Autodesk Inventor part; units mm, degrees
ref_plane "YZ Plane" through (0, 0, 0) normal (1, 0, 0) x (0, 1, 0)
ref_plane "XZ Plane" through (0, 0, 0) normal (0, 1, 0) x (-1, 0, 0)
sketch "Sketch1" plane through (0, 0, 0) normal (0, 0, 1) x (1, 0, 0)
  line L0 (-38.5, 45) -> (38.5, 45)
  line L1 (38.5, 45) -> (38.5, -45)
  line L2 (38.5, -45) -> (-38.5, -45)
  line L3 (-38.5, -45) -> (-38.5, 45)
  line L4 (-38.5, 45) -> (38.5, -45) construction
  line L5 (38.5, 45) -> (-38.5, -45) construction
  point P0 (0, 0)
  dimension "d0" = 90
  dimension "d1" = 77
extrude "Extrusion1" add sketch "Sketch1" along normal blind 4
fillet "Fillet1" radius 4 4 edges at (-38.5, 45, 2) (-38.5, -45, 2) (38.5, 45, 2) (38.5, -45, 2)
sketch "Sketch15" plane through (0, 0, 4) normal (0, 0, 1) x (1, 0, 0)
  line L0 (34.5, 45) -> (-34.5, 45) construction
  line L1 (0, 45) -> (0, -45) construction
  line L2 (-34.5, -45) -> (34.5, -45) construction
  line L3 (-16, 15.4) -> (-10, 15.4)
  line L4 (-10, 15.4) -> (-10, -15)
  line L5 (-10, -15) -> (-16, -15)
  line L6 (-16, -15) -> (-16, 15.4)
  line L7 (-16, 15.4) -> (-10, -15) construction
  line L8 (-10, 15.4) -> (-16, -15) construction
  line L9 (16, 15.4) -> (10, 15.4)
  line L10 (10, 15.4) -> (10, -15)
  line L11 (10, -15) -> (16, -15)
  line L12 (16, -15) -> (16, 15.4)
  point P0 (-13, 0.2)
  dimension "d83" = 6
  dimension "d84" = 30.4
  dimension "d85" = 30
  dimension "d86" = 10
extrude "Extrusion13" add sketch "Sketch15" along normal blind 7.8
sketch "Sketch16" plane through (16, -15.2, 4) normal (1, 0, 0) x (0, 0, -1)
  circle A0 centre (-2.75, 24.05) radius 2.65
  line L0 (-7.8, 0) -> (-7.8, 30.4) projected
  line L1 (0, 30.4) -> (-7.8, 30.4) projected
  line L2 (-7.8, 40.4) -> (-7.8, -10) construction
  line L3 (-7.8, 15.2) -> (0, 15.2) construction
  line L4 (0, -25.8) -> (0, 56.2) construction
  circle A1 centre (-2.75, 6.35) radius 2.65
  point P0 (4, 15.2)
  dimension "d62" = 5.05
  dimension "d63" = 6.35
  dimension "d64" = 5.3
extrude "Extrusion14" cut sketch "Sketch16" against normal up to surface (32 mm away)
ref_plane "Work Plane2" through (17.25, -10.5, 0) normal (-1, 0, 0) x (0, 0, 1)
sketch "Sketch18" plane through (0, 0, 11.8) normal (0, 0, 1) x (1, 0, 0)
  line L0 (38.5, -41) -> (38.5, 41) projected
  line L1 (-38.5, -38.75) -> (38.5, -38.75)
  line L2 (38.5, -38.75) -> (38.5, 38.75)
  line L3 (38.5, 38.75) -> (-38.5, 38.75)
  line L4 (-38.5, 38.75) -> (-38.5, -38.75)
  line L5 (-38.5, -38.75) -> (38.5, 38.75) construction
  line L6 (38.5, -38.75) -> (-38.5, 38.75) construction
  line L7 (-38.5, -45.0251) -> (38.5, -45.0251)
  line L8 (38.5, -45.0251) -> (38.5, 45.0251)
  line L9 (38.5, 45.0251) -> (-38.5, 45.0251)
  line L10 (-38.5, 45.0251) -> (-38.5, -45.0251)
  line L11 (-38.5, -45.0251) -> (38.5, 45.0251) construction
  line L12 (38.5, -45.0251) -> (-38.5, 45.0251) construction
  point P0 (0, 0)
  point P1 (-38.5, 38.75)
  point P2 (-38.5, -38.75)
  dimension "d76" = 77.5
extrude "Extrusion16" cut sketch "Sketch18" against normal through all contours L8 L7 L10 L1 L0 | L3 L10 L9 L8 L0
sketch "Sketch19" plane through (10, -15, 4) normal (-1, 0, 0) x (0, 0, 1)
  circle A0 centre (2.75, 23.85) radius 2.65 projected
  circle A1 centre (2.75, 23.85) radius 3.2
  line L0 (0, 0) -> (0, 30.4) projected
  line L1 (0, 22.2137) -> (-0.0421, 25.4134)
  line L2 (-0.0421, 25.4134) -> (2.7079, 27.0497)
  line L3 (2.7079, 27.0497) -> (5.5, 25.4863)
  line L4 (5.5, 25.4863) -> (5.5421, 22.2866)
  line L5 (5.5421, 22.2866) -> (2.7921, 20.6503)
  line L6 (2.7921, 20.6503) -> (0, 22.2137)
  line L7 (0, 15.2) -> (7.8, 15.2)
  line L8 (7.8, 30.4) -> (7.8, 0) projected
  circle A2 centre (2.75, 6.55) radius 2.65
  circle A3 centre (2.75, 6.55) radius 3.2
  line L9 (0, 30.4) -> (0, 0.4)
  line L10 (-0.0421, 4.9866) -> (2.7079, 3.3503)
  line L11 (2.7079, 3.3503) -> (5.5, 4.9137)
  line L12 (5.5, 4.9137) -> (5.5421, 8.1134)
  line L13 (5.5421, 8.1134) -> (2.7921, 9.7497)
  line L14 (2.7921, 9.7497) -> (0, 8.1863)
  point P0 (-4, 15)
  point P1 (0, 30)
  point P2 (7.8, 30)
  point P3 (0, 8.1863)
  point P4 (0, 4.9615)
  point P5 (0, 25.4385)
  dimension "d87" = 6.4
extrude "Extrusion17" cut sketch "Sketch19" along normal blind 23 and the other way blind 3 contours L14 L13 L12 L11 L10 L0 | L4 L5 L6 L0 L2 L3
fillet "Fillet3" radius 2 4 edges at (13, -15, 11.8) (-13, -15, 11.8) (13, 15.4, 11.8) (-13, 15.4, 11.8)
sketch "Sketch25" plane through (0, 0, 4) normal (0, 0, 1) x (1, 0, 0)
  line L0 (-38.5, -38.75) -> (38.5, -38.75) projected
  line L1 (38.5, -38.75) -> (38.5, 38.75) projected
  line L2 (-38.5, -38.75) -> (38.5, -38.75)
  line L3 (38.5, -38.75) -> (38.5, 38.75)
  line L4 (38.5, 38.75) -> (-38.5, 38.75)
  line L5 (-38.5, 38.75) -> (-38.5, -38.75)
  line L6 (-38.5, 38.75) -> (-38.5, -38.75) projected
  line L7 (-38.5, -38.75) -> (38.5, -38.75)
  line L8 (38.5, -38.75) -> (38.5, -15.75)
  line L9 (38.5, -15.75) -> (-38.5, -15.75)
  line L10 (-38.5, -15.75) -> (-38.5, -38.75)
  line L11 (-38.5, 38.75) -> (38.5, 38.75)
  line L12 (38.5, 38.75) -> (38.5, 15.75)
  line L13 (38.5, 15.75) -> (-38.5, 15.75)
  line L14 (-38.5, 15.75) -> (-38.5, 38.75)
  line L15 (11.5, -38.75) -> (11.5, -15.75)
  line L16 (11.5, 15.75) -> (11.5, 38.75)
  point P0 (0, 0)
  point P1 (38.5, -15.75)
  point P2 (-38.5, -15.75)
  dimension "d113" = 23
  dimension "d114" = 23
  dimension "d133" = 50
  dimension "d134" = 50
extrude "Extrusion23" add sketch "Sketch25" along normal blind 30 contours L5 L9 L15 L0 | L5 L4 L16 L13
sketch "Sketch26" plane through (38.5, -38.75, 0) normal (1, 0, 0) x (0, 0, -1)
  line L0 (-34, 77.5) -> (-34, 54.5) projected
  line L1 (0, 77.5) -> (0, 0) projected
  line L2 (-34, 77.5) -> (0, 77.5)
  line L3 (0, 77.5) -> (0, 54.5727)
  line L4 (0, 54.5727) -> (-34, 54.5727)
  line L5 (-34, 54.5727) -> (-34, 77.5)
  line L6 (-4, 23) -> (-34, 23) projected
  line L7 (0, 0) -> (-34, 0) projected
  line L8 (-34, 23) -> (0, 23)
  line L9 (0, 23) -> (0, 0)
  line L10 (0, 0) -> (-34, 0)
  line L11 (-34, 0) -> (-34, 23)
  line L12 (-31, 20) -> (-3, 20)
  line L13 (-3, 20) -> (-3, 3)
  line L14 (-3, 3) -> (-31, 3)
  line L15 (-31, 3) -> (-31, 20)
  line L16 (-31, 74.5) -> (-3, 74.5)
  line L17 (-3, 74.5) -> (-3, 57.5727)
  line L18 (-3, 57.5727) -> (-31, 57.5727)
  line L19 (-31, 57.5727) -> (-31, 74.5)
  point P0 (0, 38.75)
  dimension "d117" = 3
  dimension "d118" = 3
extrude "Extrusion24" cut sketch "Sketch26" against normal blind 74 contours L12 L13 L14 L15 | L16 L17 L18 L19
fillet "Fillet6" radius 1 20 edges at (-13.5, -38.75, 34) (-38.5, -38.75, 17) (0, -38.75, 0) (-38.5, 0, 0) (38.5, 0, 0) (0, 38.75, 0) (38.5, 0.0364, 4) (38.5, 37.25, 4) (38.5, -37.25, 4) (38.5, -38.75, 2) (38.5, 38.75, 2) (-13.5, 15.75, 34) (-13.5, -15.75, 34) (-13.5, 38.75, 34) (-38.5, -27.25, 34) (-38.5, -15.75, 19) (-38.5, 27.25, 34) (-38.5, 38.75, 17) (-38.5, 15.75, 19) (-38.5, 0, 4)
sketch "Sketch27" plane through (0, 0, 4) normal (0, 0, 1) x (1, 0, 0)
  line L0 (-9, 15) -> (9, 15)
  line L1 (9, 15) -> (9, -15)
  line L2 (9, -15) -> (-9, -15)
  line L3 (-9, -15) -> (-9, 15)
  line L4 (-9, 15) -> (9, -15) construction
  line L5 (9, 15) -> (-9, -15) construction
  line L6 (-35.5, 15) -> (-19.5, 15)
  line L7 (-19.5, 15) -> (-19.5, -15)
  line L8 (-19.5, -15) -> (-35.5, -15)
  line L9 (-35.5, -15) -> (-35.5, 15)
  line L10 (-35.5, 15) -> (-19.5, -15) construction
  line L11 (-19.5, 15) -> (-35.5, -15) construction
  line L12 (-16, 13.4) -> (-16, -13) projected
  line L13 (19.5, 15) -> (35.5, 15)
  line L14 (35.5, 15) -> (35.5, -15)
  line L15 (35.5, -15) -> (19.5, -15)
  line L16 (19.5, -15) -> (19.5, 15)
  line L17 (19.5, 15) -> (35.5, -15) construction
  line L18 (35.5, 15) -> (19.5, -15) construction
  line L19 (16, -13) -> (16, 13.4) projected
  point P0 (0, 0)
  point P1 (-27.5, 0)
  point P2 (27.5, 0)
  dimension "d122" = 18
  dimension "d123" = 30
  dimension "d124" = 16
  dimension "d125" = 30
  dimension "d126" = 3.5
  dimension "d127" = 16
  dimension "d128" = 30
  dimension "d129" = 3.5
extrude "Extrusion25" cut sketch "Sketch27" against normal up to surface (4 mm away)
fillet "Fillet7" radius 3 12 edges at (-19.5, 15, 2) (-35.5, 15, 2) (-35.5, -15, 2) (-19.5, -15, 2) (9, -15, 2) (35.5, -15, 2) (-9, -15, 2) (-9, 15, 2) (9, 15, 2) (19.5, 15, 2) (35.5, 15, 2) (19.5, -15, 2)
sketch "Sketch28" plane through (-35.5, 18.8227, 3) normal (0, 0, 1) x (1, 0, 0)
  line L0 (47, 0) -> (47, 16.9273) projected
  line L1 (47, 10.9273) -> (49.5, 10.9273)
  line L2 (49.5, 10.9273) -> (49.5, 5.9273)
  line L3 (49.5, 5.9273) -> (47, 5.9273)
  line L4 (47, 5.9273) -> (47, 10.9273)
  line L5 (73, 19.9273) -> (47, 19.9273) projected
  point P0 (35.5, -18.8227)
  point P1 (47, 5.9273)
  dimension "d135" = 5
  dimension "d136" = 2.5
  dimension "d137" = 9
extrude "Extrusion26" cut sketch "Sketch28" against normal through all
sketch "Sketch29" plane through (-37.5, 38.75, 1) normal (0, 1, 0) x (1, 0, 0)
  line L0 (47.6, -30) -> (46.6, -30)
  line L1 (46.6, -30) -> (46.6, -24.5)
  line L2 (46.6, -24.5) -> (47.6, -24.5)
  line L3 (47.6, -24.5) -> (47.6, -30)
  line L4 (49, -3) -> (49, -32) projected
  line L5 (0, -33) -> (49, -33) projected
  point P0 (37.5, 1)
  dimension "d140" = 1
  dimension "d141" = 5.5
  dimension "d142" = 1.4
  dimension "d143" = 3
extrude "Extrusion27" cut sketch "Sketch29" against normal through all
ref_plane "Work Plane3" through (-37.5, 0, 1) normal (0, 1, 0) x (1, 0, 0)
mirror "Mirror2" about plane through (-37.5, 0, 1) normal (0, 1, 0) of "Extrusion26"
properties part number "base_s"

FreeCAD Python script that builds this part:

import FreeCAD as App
import Part
import Sketcher

V = App.Vector
Q = App.Units.Quantity


def edges_at(feature, points):
    """Names of the edges that pass closest to the given points."""
    edges = feature.Shape.Edges
    near = lambda p: min(range(len(edges)), key=lambda i: edges[i].distToShape(Part.Vertex(*p))[0])
    return sorted({f"Edge{near(p) + 1}" for p in points})


def add_polygon(sketch, points):
    """Adds a closed chain of lines whose ends are joined by coincident constraints."""
    first, n = sketch.GeometryCount, len(points)
    for a, b in zip(points, points[1:] + points[:1]):
        sketch.addGeometry(Part.LineSegment(App.Vector(*a, 0), App.Vector(*b, 0)), False)
    for i in range(n):
        sketch.addConstraint(Sketcher.Constraint("Coincident", first + i, 2, first + (i + 1) % n, 1))

doc = App.newDocument("Part")
body = doc.addObject("PartDesign::Body", "Body")

# Sketch on XY plane
sketch1 = body.newObject("Sketcher::SketchObject", "Sketch")
sketch1.AttachmentSupport = (doc.getObject("XY_Plane"), [""])
sketch1.MapMode = "FlatFace"
add_polygon(sketch1, [(38, 45), (-38, 45), (-38, -45), (38, -45)])  # lines 0-3
sketch1.addConstraint([
    Sketcher.Constraint("Horizontal", 0),
    Sketcher.Constraint("Vertical", 1),
    Sketcher.Constraint("Horizontal", 2),
    Sketcher.Constraint("Vertical", 3),
    Sketcher.Constraint("Symmetric", 0, 2, 2, 2, -1, 1),
    Sketcher.Constraint("DistanceX", 0, 2, 0, 1, Q("77 mm")),
    Sketcher.Constraint("DistanceY", 1, 2, 1, 1, Q("90 mm")),
])
pad1 = body.newObject("PartDesign::Pad", "Pad")
pad1.Profile = sketch1
pad1.Length = 4
doc.recompute()

fillet = body.newObject("PartDesign::Fillet", "Fillet")
fillet.Base = (pad1, edges_at(pad1, [
    (-38.5, 45, 2),
    (-38.5, -45, 2),
    (38.5, 45, 2),
    (38.5, -45, 2),
]))
fillet.Radius = 4

# Sketch on XY plane
sketch2 = body.newObject("Sketcher::SketchObject", "Sketch001")
sketch2.AttachmentSupport = (doc.getObject("XY_Plane"), [""])
sketch2.MapMode = "FlatFace"
sketch2.AttachmentOffset = App.Placement(V(0, 0, 4), App.Rotation())
add_polygon(sketch2, [(-10, 15), (-16, 15), (-16, -15), (-10, -15)])  # lines 0-3
add_polygon(sketch2, [(16, -15), (16, 15), (10, 15), (10, -15)])  # lines 4-7
sketch2.addConstraint([
    Sketcher.Constraint("Horizontal", 0),
    Sketcher.Constraint("Vertical", 1),
    Sketcher.Constraint("Horizontal", 2),
    Sketcher.Constraint("Vertical", 3),
    Sketcher.Constraint("Vertical", 4),
    Sketcher.Constraint("Horizontal", 5),
    Sketcher.Constraint("Vertical", 6),
    Sketcher.Constraint("Horizontal", 7),
    Sketcher.Constraint("Symmetric", 0, 2, 4, 2, -2),
    Sketcher.Constraint("Symmetric", 2, 2, 6, 2, -2),
    Sketcher.Constraint("DistanceX", 0, 2, 0, 1, Q("6 mm")),
    Sketcher.Constraint("DistanceY", 1, 2, 1, 1, Q("30.4 mm")),
    Sketcher.Constraint("DistanceX", 2, 2, -1, 1, Q("10 mm")),
    Sketcher.Constraint("DistanceY", 1, 2, -1, 1, Q("15 mm")),
])
pad2 = body.newObject("PartDesign::Pad", "Pad001")
pad2.Profile = sketch2
pad2.Length = 7.8

# Sketch on YZ plane
sketch3 = body.newObject("Sketcher::SketchObject", "Sketch002")
sketch3.AttachmentSupport = (doc.getObject("YZ_Plane"), [""])
sketch3.MapMode = "FlatFace"
sketch3.AttachmentOffset = App.Placement(V(0, 0, 16), App.Rotation())
sketch3.addGeometry([
    Part.Circle(V(8.8, 6.8, 0), V(0, 0, 1), 2.6),
    Part.Circle(V(-8.8, 6.8, 0), V(0, 0, 1), 2.6),
], False)
sketch3.addConstraint([
    Sketcher.Constraint("Equal", 0, 1),
    Sketcher.Constraint("Symmetric", 0, 3, 1, 3, -2),
    Sketcher.Constraint("Diameter", 0, Q("5.3 mm")),
    Sketcher.Constraint("DistanceX", 1, 3, 0, 3, Q("17.7 mm")),
    Sketcher.Constraint("DistanceY", -1, 1, 0, 3, Q("6.75 mm")),
])
pocket1 = body.newObject("PartDesign::Pocket", "Pocket")
pocket1.Profile = sketch3
pocket1.Length = 32

# Sketch on XY plane
sketch4 = body.newObject("Sketcher::SketchObject", "Sketch003")
sketch4.AttachmentSupport = (doc.getObject("XY_Plane"), [""])
sketch4.MapMode = "FlatFace"
sketch4.AttachmentOffset = App.Placement(V(0, 0, 11.8), App.Rotation())
add_polygon(sketch4, [(38, -45), (38, -39), (-38, -39), (-38, -45)])  # lines 0-3
add_polygon(sketch4, [(-38, 39), (38, 39), (38, 45), (-38, 45)])  # lines 4-7
sketch4.addConstraint([
    Sketcher.Constraint("Vertical", 0),
    Sketcher.Constraint("Horizontal", 1),
    Sketcher.Constraint("Vertical", 2),
    Sketcher.Constraint("Horizontal", 3),
    Sketcher.Constraint("Horizontal", 4),
    Sketcher.Constraint("Vertical", 5),
    Sketcher.Constraint("Horizontal", 6),
    Sketcher.Constraint("Vertical", 7),
    Sketcher.Constraint("Symmetric", 1, 2, 4, 2, -1, 1),
    Sketcher.Constraint("Symmetric", 3, 2, 6, 2, -1, 1),
    Sketcher.Constraint("Vertical", 3, 2, 4, 2),
    Sketcher.Constraint("DistanceY", 0, 2, 4, 2, Q("77.5 mm")),
    Sketcher.Constraint("DistanceX", 1, 2, 1, 1, Q("77 mm")),
    Sketcher.Constraint("DistanceY", 0, 1, 0, 2, Q("6.275 mm")),
])
pocket2 = body.newObject("PartDesign::Pocket", "Pocket001")
pocket2.Profile = sketch4
pocket2.Type = "ThroughAll"

# Sketch on YZ plane
sketch5 = body.newObject("Sketcher::SketchObject", "Sketch004")
sketch5.AttachmentSupport = (doc.getObject("YZ_Plane"), [""])
sketch5.MapMode = "FlatFace"
sketch5.AttachmentOffset = App.Placement(V(0, 0, 10), App.Rotation())
add_polygon(sketch5, [(-5.2503, 6.7921), (-6.8137, 4), (-10.03845, 4), (-11.6497, 6.7079), (-10.0863, 9.5), (-6.8866, 9.5421)])  # lines 0-5
sketch5.addGeometry(Part.Circle(V(-8.45, 6.75, 0), V(0, 0, 1), 2.65), False)  # 6
add_polygon(sketch5, [(7.2866, 9.5421), (10.4863, 9.5), (12.0497, 6.7079), (10.43845, 4), (7.2137, 4), (5.6503, 6.7921)])  # lines 7-12
sketch5.addGeometry(Part.Circle(V(8.85, 6.75, 0), V(0, 0, 1), 2.65), False)  # 13
sketch5.addConstraint([
    Sketcher.Constraint("Horizontal", 1),
    Sketcher.Constraint("Horizontal", 10),
    Sketcher.Constraint("Equal", 6, 13),
    Sketcher.Constraint("Parallel", 0, 3),
    Sketcher.Constraint("Parallel", 2, 5),
    Sketcher.Constraint("Parallel", 8, 11),
    Sketcher.Constraint("Parallel", 9, 12),
    Sketcher.Constraint("Horizontal", 6, 3, 13, 3),
    Sketcher.Constraint("Horizontal", 3, 2, 7, 2),
    Sketcher.Constraint("Horizontal", 2, 2, 8, 2),
    Sketcher.Constraint("Horizontal", 1, 2, 9, 2),
    Sketcher.Constraint("Horizontal", 5, 2, 11, 2),
    Sketcher.Constraint("Horizontal", 4, 2, 12, 2),
    Sketcher.Constraint("Equal", 1, 10),
    Sketcher.Constraint("Equal", 0, 3),
    Sketcher.Constraint("Equal", 3, 4),
    Sketcher.Constraint("Equal", 4, 5),
    Sketcher.Constraint("Equal", 5, 7),
    Sketcher.Constraint("Equal", 7, 8),
    Sketcher.Constraint("Diameter", 6, Q("5.3 mm")),
    Sketcher.Constraint("DistanceY", -1, 1, 0, 2, Q("4 mm")),
    Sketcher.Constraint("Distance", 0, Q("3.2 mm")),
    Sketcher.Constraint("DistanceY", -1, 1, 3, 2, Q("9.5 mm")),
    Sketcher.Constraint("DistanceX", 6, 3, 13, 3, Q("17.3 mm")),
    Sketcher.Constraint("DistanceX", 0, 2, 7, 2, Q("17.3 mm")),
    Sketcher.Constraint("DistanceX", 6, 3, -1, 1, Q("8.45 mm")),
    Sketcher.Constraint("DistanceY", -1, 1, 6, 3, Q("6.75 mm")),
    Sketcher.Constraint("DistanceY", 5, 2, 4, 2, Q("2.75 mm")),
    Sketcher.Constraint("Distance", 2, Q("3.151 mm")),
    Sketcher.Constraint("DistanceX", 0, 2, -1, 1, Q("6.8137 mm")),
])
pocket3 = body.newObject("PartDesign::Pocket", "Pocket002")
pocket3.Profile = sketch5
pocket3.Type = "TwoLengths"
pocket3.Length = 23
pocket3.Length2 = 3
doc.recompute()

fillet2 = body.newObject("PartDesign::Fillet", "Fillet001")
fillet2.Base = (pocket3, edges_at(pocket3, [
    (13, -15, 11.8),
    (-13, -15, 11.8),
    (13, 15.4, 11.8),
    (-13, 15.4, 11.8),
]))
fillet2.Radius = 2

# Sketch on XY plane
sketch6 = body.newObject("Sketcher::SketchObject", "Sketch005")
sketch6.AttachmentSupport = (doc.getObject("XY_Plane"), [""])
sketch6.MapMode = "FlatFace"
sketch6.AttachmentOffset = App.Placement(V(0, 0, 4), App.Rotation())
add_polygon(sketch6, [(-38, -16), (-38, -39), (12, -39), (12, -16)])  # lines 0-3
add_polygon(sketch6, [(-38, 39), (-38, 16), (12, 16), (12, 39)])  # lines 4-7
sketch6.addConstraint([
    Sketcher.Constraint("Vertical", 0),
    Sketcher.Constraint("Horizontal", 1),
    Sketcher.Constraint("Vertical", 2),
    Sketcher.Constraint("Horizontal", 3),
    Sketcher.Constraint("Vertical", 4),
    Sketcher.Constraint("Horizontal", 5),
    Sketcher.Constraint("Vertical", 6),
    Sketcher.Constraint("Horizontal", 7),
    Sketcher.Constraint("Symmetric", 3, 2, 4, 2, -1),
    Sketcher.Constraint("Symmetric", 1, 2, 6, 2, -1),
    Sketcher.Constraint("DistanceX", 1, 1, 1, 2, Q("50 mm")),
    Sketcher.Constraint("DistanceY", 0, 2, 0, 1, Q("23 mm")),
    Sketcher.Constraint("DistanceX", 0, 2, -1, 1, Q("38.5 mm")),
    Sketcher.Constraint("DistanceY", 3, 2, 4, 2, Q("31.5 mm")),
])
pad3 = body.newObject("PartDesign::Pad", "Pad002")
pad3.Profile = sketch6
pad3.Length = 30

# Sketch on YZ plane
sketch7 = body.newObject("Sketcher::SketchObject", "Sketch006")
sketch7.AttachmentSupport = (doc.getObject("YZ_Plane"), [""])
sketch7.MapMode = "FlatFace"
sketch7.AttachmentOffset = App.Placement(V(0, 0, 38.5), App.Rotation())
add_polygon(sketch7, [(-19, 3), (-19, 31), (-36, 31), (-36, 3)])  # lines 0-3
add_polygon(sketch7, [(36, 3), (36, 31), (19, 31), (19, 3)])  # lines 4-7
sketch7.addConstraint([
    Sketcher.Constraint("Vertical", 0),
    Sketcher.Constraint("Horizontal", 1),
    Sketcher.Constraint("Vertical", 2),
    Sketcher.Constraint("Horizontal", 3),
    Sketcher.Constraint("Vertical", 4),
    Sketcher.Constraint("Horizontal", 5),
    Sketcher.Constraint("Vertical", 6),
    Sketcher.Constraint("Horizontal", 7),
    Sketcher.Constraint("Symmetric", 1, 2, 4, 2, -2),
    Sketcher.Constraint("Horizontal", 3, 2, 6, 2),
    Sketcher.Constraint("DistanceY", -1, 1, 2, 2, Q("3 mm")),
    Sketcher.Constraint("DistanceX", 1, 2, 1, 1, Q("17 mm")),
    Sketcher.Constraint("DistanceY", 0, 1, 0, 2, Q("28 mm")),
    Sketcher.Constraint("DistanceX", 0, 2, 4, 2, Q("54.5 mm")),
    Sketcher.Constraint("DistanceX", 5, 2, 5, 1, Q("16.9273 mm")),
])
pocket4 = body.newObject("PartDesign::Pocket", "Pocket003")
pocket4.Profile = sketch7
pocket4.Length = 74
doc.recompute()

fillet3 = body.newObject("PartDesign::Fillet", "Fillet002")
fillet3.Base = (pocket4, edges_at(pocket4, [
    (-13.5, -38.75, 34),
    (-38.5, -38.75, 17),
    (0, -38.75, 0),
    (-38.5, 0, 0),
    (38.5, 0, 0),
    (0, 38.75, 0),
    (38.5, 0.036, 4),
    (38.5, 37.25, 4),
    (38.5, -37.25, 4),
    (38.5, -38.75, 2),
    (38.5, 38.75, 2),
    (-13.5, 15.75, 34),
    (-13.5, -15.75, 34),
    (-13.5, 38.75, 34),
    (-38.5, -27.25, 34),
    (-38.5, -15.75, 19),
    (-38.5, 27.25, 34),
    (-38.5, 38.75, 17),
    (-38.5, 15.75, 19),
    (-38.5, 0, 4),
]))
fillet3.Radius = 1

# Sketch on XY plane
sketch8 = body.newObject("Sketcher::SketchObject", "Sketch007")
sketch8.AttachmentSupport = (doc.getObject("XY_Plane"), [""])
sketch8.MapMode = "FlatFace"
sketch8.AttachmentOffset = App.Placement(V(0, 0, 4), App.Rotation())
add_polygon(sketch8, [(9, 15), (-9, 15), (-9, -15), (9, -15)])  # lines 0-3
add_polygon(sketch8, [(-20, 15), (-36, 15), (-36, -15), (-20, -15)])  # lines 4-7
add_polygon(sketch8, [(36, 15), (20, 15), (20, -15), (36, -15)])  # lines 8-11
sketch8.addConstraint([
    Sketcher.Constraint("Horizontal", 0),
    Sketcher.Constraint("Vertical", 1),
    Sketcher.Constraint("Horizontal", 2),
    Sketcher.Constraint("Vertical", 3),
    Sketcher.Constraint("Horizontal", 4),
    Sketcher.Constraint("Vertical", 5),
    Sketcher.Constraint("Horizontal", 6),
    Sketcher.Constraint("Vertical", 7),
    Sketcher.Constraint("Horizontal", 8),
    Sketcher.Constraint("Vertical", 9),
    Sketcher.Constraint("Horizontal", 10),
    Sketcher.Constraint("Vertical", 11),
    Sketcher.Constraint("Symmetric", 0, 2, 2, 2, -1, 1),
    Sketcher.Constraint("Symmetric", 6, 2, 8, 2, -1, 1),
    Sketcher.Constraint("Symmetric", 4, 2, 10, 2, -1, 1),
    Sketcher.Constraint("Horizontal", 3, 2, 4, 2),
    Sketcher.Constraint("Horizontal", 2, 2, 5, 2),
    Sketcher.Constraint("DistanceX", 0, 2, 0, 1, Q("18 mm")),
    Sketcher.Constraint("DistanceX", 4, 2, 4, 1, Q("16 mm")),
    Sketcher.Constraint("DistanceY", 1, 2, 1, 1, Q("30 mm")),
    Sketcher.Constraint("DistanceX", 7, 2, 8, 2, Q("39 mm")),
])
pocket5 = body.newObject("PartDesign::Pocket", "Pocket004")
pocket5.Profile = sketch8
pocket5.Length = 4
doc.recompute()

fillet4 = body.newObject("PartDesign::Fillet", "Fillet003")
fillet4.Base = (pocket5, edges_at(pocket5, [
    (-19.5, 15, 2),
    (-35.5, 15, 2),
    (-35.5, -15, 2),
    (-19.5, -15, 2),
    (9, -15, 2),
    (35.5, -15, 2),
    (-9, -15, 2),
    (-9, 15, 2),
    (9, 15, 2),
    (19.5, 15, 2),
    (35.5, 15, 2),
    (19.5, -15, 2),
]))
fillet4.Radius = 3

# Sketch on XY plane
sketch9 = body.newObject("Sketcher::SketchObject", "Sketch008")
sketch9.AttachmentSupport = (doc.getObject("XY_Plane"), [""])
sketch9.MapMode = "FlatFace"
sketch9.AttachmentOffset = App.Placement(V(0, 0, 3), App.Rotation())
add_polygon(sketch9, [(11.5, 29.8), (11.5, 24.8), (14, 24.8), (14, 29.8)])  # lines 0-3
sketch9.addConstraint([
    Sketcher.Constraint("Vertical", 0),
    Sketcher.Constraint("Horizontal", 1),
    Sketcher.Constraint("Vertical", 2),
    Sketcher.Constraint("Horizontal", 3),
    Sketcher.Constraint("DistanceY", 0, 2, 0, 1, Q("5 mm")),
    Sketcher.Constraint("DistanceX", 1, 1, 1, 2, Q("2.5 mm")),
    Sketcher.Constraint("DistanceX", -1, 1, 1, 2, Q("14 mm")),
    Sketcher.Constraint("DistanceY", -1, 1, 0, 2, Q("24.75 mm")),
])
pocket6 = body.newObject("PartDesign::Pocket", "Pocket005")
pocket6.Profile = sketch9
pocket6.Type = "ThroughAll"

# Sketch on XZ plane
sketch10 = body.newObject("Sketcher::SketchObject", "Sketch009")
sketch10.AttachmentSupport = (doc.getObject("XZ_Plane"), [""])
sketch10.MapMode = "FlatFace"
sketch10.AttachmentOffset = App.Placement(V(0, 0, -38.75), App.Rotation())
add_polygon(sketch10, [(9.1, 31), (10.1, 31), (10.1, 25.5), (9.1, 25.5)])  # lines 0-3
sketch10.addConstraint([
    Sketcher.Constraint("Horizontal", 0),
    Sketcher.Constraint("Vertical", 1),
    Sketcher.Constraint("Horizontal", 2),
    Sketcher.Constraint("Vertical", 3),
    Sketcher.Constraint("DistanceX", 0, 1, 0, 2, Q("1 mm")),
    Sketcher.Constraint("DistanceY", 1, 2, 1, 1, Q("5.5 mm")),
    Sketcher.Constraint("DistanceY", -1, 1, 0, 2, Q("31 mm")),
    Sketcher.Constraint("DistanceX", -1, 1, 0, 2, Q("10.1 mm")),
])
pocket7 = body.newObject("PartDesign::Pocket", "Pocket006")
pocket7.Profile = sketch10
pocket7.Type = "ThroughAll"
pocket7.Reversed = True
doc.recompute()

mirrored = body.newObject("PartDesign::Mirrored", "Mirrored")
mirrored.Originals = [pocket6]
mirrored.MirrorPlane = (doc.getObject("XZ_Plane"), [""])
body.Tip = mirrored

doc.recompute()
